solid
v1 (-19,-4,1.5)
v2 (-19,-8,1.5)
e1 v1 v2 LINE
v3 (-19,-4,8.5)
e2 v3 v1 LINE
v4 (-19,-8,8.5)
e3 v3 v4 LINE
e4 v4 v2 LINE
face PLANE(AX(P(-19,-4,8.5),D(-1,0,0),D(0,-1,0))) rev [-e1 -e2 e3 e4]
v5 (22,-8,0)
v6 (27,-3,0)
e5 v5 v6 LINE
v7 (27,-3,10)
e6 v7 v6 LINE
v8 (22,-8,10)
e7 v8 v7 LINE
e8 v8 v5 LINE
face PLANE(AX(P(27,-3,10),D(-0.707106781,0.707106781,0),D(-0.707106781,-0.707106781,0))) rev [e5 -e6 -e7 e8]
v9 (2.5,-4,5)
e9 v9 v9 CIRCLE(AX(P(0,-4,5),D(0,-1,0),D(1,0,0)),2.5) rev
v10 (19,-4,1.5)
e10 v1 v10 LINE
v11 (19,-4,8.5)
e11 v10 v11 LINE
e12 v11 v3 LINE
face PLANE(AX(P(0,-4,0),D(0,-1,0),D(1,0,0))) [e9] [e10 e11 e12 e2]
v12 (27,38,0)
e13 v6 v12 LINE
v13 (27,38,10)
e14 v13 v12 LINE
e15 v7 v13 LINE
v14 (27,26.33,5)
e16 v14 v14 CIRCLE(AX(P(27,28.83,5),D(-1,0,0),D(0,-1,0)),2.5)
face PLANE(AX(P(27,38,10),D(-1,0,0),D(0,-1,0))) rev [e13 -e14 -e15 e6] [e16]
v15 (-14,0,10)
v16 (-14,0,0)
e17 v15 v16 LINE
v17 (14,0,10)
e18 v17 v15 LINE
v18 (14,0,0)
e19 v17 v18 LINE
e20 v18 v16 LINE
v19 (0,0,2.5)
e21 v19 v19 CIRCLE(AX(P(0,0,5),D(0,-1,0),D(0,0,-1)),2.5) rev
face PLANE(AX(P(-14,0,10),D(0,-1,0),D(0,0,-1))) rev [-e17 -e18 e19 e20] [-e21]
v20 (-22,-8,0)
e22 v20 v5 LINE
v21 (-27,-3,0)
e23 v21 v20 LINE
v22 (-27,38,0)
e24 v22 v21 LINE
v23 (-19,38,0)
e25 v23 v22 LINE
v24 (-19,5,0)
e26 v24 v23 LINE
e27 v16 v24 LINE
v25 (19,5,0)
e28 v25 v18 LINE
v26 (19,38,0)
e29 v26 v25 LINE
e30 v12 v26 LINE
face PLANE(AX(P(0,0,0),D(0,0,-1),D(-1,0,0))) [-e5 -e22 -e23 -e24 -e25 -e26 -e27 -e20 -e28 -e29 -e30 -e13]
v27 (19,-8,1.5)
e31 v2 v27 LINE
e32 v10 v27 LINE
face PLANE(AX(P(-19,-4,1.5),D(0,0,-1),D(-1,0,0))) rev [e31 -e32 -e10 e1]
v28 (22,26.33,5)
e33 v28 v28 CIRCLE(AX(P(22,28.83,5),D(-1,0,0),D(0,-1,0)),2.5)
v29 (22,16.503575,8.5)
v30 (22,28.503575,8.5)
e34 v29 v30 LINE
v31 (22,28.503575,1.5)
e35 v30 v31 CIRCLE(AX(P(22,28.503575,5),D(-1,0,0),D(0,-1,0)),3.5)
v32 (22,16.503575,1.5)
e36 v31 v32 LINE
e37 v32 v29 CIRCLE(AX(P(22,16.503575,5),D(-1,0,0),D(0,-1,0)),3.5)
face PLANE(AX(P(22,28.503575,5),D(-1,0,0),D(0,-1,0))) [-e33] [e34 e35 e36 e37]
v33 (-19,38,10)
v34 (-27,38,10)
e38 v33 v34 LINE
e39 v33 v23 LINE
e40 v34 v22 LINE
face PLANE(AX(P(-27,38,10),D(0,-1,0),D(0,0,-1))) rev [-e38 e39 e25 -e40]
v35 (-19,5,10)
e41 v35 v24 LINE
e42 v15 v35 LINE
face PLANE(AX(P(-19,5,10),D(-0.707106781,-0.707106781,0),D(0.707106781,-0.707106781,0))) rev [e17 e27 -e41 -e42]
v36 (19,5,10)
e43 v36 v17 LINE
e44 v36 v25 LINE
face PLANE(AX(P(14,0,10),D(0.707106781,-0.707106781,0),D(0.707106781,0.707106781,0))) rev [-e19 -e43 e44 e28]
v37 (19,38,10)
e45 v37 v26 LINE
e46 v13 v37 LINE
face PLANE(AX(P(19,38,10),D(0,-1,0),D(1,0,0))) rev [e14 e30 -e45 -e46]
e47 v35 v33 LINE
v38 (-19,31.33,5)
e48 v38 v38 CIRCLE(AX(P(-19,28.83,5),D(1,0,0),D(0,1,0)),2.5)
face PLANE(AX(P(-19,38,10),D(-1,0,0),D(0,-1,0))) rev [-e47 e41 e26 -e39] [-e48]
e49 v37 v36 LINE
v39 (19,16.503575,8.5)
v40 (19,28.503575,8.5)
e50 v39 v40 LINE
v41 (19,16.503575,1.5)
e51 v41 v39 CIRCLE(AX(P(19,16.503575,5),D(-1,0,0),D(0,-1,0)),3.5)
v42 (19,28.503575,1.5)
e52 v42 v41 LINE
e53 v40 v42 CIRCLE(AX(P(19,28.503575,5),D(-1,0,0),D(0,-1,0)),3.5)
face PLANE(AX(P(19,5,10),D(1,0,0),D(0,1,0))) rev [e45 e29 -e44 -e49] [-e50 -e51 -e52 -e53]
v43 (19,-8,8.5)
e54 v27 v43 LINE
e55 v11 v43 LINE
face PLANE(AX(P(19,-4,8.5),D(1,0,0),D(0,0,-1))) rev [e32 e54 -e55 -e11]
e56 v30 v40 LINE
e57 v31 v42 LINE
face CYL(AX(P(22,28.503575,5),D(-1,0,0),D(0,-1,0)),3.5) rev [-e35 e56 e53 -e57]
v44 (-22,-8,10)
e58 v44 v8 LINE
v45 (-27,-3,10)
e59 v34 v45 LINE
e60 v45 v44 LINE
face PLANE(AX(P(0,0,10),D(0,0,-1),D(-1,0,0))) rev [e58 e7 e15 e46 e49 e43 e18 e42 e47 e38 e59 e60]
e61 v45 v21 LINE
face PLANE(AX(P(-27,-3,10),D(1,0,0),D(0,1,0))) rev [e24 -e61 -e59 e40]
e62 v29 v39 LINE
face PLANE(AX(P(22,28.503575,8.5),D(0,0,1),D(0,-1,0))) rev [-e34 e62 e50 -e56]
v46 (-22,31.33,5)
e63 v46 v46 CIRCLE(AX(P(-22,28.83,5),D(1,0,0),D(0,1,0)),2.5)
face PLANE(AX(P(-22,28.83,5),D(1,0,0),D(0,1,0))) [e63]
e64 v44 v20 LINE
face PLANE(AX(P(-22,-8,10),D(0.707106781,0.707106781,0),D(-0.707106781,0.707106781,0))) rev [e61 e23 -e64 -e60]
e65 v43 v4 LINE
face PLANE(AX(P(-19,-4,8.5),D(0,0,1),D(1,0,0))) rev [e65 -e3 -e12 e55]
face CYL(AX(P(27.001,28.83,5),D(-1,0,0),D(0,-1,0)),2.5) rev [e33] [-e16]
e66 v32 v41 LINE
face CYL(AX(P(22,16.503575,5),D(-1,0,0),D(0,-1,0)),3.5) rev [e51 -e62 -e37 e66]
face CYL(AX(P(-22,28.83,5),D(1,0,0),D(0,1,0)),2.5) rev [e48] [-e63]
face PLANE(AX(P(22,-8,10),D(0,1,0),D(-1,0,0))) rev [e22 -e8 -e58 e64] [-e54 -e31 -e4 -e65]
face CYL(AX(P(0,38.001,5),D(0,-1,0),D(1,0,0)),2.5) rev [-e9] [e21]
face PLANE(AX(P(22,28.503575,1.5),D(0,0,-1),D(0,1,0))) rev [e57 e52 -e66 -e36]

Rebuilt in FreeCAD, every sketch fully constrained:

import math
import FreeCAD as App
import Part
import Sketcher

V = App.Vector

doc = App.newDocument("Part")
body = doc.addObject("PartDesign::Body", "Body")

# Sketch on XY plane
sketch1 = body.newObject("Sketcher::SketchObject", "Sketch")
sketch1.AttachmentSupport = (doc.getObject("XY_Plane"), [""])
sketch1.MapMode = "FlatFace"
sketch1.addGeometry(Part.LineSegment(V(-19, 38, 0), V(-27, 38, 0)), False)
sketch1.addGeometry(Part.LineSegment(V(-27, 38, 0), V(-27, -3, 0)), False)
sketch1.addGeometry(Part.LineSegment(V(-27, -3, 0), V(-22, -8, 0)), False)
sketch1.addGeometry(Part.LineSegment(V(-22, -8, 0), V(22, -8, 0)), False)
sketch1.addGeometry(Part.LineSegment(V(22, -8, 0), V(27, -3, 0)), False)
sketch1.addGeometry(Part.LineSegment(V(27, -3, 0), V(27, 38, 0)), False)
sketch1.addGeometry(Part.LineSegment(V(27, 38, 0), V(19, 38, 0)), False)
sketch1.addGeometry(Part.LineSegment(V(19, 38, 0), V(19, 5, 0)), False)
sketch1.addGeometry(Part.LineSegment(V(19, 5, 0), V(14, 0, 0)), False)
sketch1.addGeometry(Part.LineSegment(V(14, 0, 0), V(-14, 0, 0)), False)
sketch1.addGeometry(Part.LineSegment(V(-14, 0, 0), V(-19, 5, 0)), False)
sketch1.addGeometry(Part.LineSegment(V(-19, 5, 0), V(-19, 38, 0)), False)
sketch1.addConstraint(Sketcher.Constraint("Coincident", 0, 2, 1, 1))
sketch1.addConstraint(Sketcher.Constraint("Coincident", 1, 2, 2, 1))
sketch1.addConstraint(Sketcher.Constraint("Coincident", 2, 2, 3, 1))
sketch1.addConstraint(Sketcher.Constraint("Coincident", 3, 2, 4, 1))
sketch1.addConstraint(Sketcher.Constraint("Coincident", 4, 2, 5, 1))
sketch1.addConstraint(Sketcher.Constraint("Coincident", 5, 2, 6, 1))
sketch1.addConstraint(Sketcher.Constraint("Coincident", 6, 2, 7, 1))
sketch1.addConstraint(Sketcher.Constraint("Coincident", 7, 2, 8, 1))
sketch1.addConstraint(Sketcher.Constraint("Coincident", 8, 2, 9, 1))
sketch1.addConstraint(Sketcher.Constraint("Coincident", 9, 2, 10, 1))
sketch1.addConstraint(Sketcher.Constraint("Coincident", 10, 2, 11, 1))
sketch1.addConstraint(Sketcher.Constraint("Coincident", 11, 2, 0, 1))
sketch1.addConstraint(Sketcher.Constraint("Horizontal", 0))
sketch1.addConstraint(Sketcher.Constraint("Vertical", 1))
sketch1.addConstraint(Sketcher.Constraint("Horizontal", 3))
sketch1.addConstraint(Sketcher.Constraint("Vertical", 5))
sketch1.addConstraint(Sketcher.Constraint("Horizontal", 6))
sketch1.addConstraint(Sketcher.Constraint("Vertical", 7))
sketch1.addConstraint(Sketcher.Constraint("Horizontal", 9))
sketch1.addConstraint(Sketcher.Constraint("Vertical", 11))
sketch1.addConstraint(Sketcher.Constraint("Symmetric", 8, 2, 9, 2, -1, 1))
sketch1.addConstraint(Sketcher.Constraint("Symmetric", 1, 2, 4, 2, -2))
sketch1.addConstraint(Sketcher.Constraint("Symmetric", 7, 2, 10, 2, -2))
sketch1.addConstraint(Sketcher.Constraint("Perpendicular", 2, 4))
sketch1.addConstraint(Sketcher.Constraint("Parallel", 4, 8))
sketch1.addConstraint(Sketcher.Constraint("Perpendicular", 8, 10))
sketch1.addConstraint(Sketcher.Constraint("Horizontal", 0, 2, 5, 2))
sketch1.addConstraint(Sketcher.Constraint("Equal", 4, 8))
sketch1.addConstraint(Sketcher.Constraint("DistanceX", 0, 2, 0, 1, 8.0))
sketch1.addConstraint(Sketcher.Constraint("DistanceX", 3, 1, 3, 2, 44.0))
sketch1.addConstraint(Sketcher.Constraint("DistanceY", 1, 2, 1, 1, 41.0))
sketch1.addConstraint(Sketcher.Constraint("DistanceY", 7, 2, 7, 1, 33.0))
sketch1.addConstraint(Sketcher.Constraint("DistanceX", 0, 2, -1, 1, 27.0))
pad1 = body.newObject("PartDesign::Pad", "Pad")
pad1.Profile = sketch1
pad1.Length = 10

# Sketch on YZ plane
sketch2 = body.newObject("Sketcher::SketchObject", "Sketch001")
sketch2.AttachmentSupport = (doc.getObject("YZ_Plane"), [""])
sketch2.MapMode = "FlatFace"
sketch2.AttachmentOffset = App.Placement(V(0, 0, -19), App.Rotation())
sketch2.addGeometry(Part.Circle(V(28.83, 5, 0), V(0, 0, 1), 2.5), False)
sketch2.addConstraint(Sketcher.Constraint("Diameter", 0, 5.0))
sketch2.addConstraint(Sketcher.Constraint("DistanceY", -1, 1, 0, 3, 5.0))
sketch2.addConstraint(Sketcher.Constraint("DistanceX", -1, 1, 0, 3, 28.83))
pocket1 = body.newObject("PartDesign::Pocket", "Pocket")
pocket1.Profile = sketch2
pocket1.Length = 3

# Sketch on YZ plane
sketch3 = body.newObject("Sketcher::SketchObject", "Sketch002")
sketch3.AttachmentSupport = (doc.getObject("YZ_Plane"), [""])
sketch3.MapMode = "FlatFace"
sketch3.AttachmentOffset = App.Placement(V(0, 0, -19), App.Rotation())
sketch3.addGeometry(Part.Circle(V(28.83, 5, 0), V(0, 0, 1), 2.5), False)
sketch3.addConstraint(Sketcher.Constraint("Diameter", 0, 5.0))
sketch3.addConstraint(Sketcher.Constraint("DistanceY", -1, 1, 0, 3, 5.0))
sketch3.addConstraint(Sketcher.Constraint("DistanceX", -1, 1, 0, 3, 28.83))
pocket2 = body.newObject("PartDesign::Pocket", "Pocket001")
pocket2.Profile = sketch3
pocket2.Length = 46
pocket2.Reversed = True

# Sketch on YZ plane
sketch4 = body.newObject("Sketcher::SketchObject", "Sketch003")
sketch4.AttachmentSupport = (doc.getObject("YZ_Plane"), [""])
sketch4.MapMode = "FlatFace"
sketch4.AttachmentOffset = App.Placement(V(0, 0, 19), App.Rotation())
sketch4.addGeometry(Part.LineSegment(V(16.503575, 8.5, 0), V(28.503575, 8.5, 0)), False)
sketch4.addGeometry(Part.ArcOfCircle(Part.Circle(V(28.503575, 5, 0), V(0, 0, 1), 3.5), math.radians(-90), math.radians(90)), False)
sketch4.addGeometry(Part.LineSegment(V(28.503575, 1.5, 0), V(16.503575, 1.5, 0)), False)
sketch4.addGeometry(Part.ArcOfCircle(Part.Circle(V(16.503575, 5, 0), V(0, 0, 1), 3.5), math.radians(90), math.radians(270)), False)
sketch4.addConstraint(Sketcher.Constraint("Tangent", 0, 2, 1, 2))
sketch4.addConstraint(Sketcher.Constraint("Tangent", 1, 1, 2, 1))
sketch4.addConstraint(Sketcher.Constraint("Tangent", 2, 2, 3, 2))
sketch4.addConstraint(Sketcher.Constraint("Tangent", 3, 1, 0, 1))
sketch4.addConstraint(Sketcher.Constraint("Horizontal", 0))
sketch4.addConstraint(Sketcher.Constraint("Horizontal", 2))
sketch4.addConstraint(Sketcher.Constraint("Radius", 1, 3.5))
sketch4.addConstraint(Sketcher.Constraint("DistanceX", 0, 1, 0, 2, 12.0))
sketch4.addConstraint(Sketcher.Constraint("DistanceY", -1, 1, 1, 3, 5.0))
sketch4.addConstraint(Sketcher.Constraint("DistanceX", -1, 1, 1, 3, 28.503575))
pocket3 = body.newObject("PartDesign::Pocket", "Pocket002")
pocket3.Profile = sketch4
pocket3.Length = 3
pocket3.Reversed = True

# Sketch on XZ plane
sketch5 = body.newObject("Sketcher::SketchObject", "Sketch004")
sketch5.AttachmentSupport = (doc.getObject("XZ_Plane"), [""])
sketch5.MapMode = "FlatFace"
sketch5.AttachmentOffset = App.Placement(V(0, 0, 8), App.Rotation())
sketch5.addGeometry(Part.Circle(V(0, 5, 0), V(0, 0, 1), 2.5), False)
sketch5.addConstraint(Sketcher.Constraint("PointOnObject", 0, 3, -2))
sketch5.addConstraint(Sketcher.Constraint("Diameter", 0, 5.0))
sketch5.addConstraint(Sketcher.Constraint("DistanceY", -1, 1, 0, 3, 5.0))
pocket4 = body.newObject("PartDesign::Pocket", "Pocket003")
pocket4.Profile = sketch5
pocket4.Type = "UpToFirst"

# Sketch on XZ plane
sketch6 = body.newObject("Sketcher::SketchObject", "Sketch005")
sketch6.AttachmentSupport = (doc.getObject("XZ_Plane"), [""])
sketch6.MapMode = "FlatFace"
sketch6.AttachmentOffset = App.Placement(V(0, 0, 8), App.Rotation())
sketch6.addGeometry(Part.LineSegment(V(-19, 8.5, 0), V(-19, 1.5, 0)), False)
sketch6.addGeometry(Part.LineSegment(V(-19, 1.5, 0), V(19, 1.5, 0)), False)
sketch6.addGeometry(Part.LineSegment(V(19, 1.5, 0), V(19, 8.5, 0)), False)
sketch6.addGeometry(Part.LineSegment(V(19, 8.5, 0), V(-19, 8.5, 0)), False)
sketch6.addConstraint(Sketcher.Constraint("Coincident", 0, 2, 1, 1))
sketch6.addConstraint(Sketcher.Constraint("Coincident", 1, 2, 2, 1))
sketch6.addConstraint(Sketcher.Constraint("Coincident", 2, 2, 3, 1))
sketch6.addConstraint(Sketcher.Constraint("Coincident", 3, 2, 0, 1))
sketch6.addConstraint(Sketcher.Constraint("Vertical", 0))
sketch6.addConstraint(Sketcher.Constraint("Horizontal", 1))
sketch6.addConstraint(Sketcher.Constraint("Vertical", 2))
sketch6.addConstraint(Sketcher.Constraint("Horizontal", 3))
sketch6.addConstraint(Sketcher.Constraint("DistanceX", 1, 1, 1, 2, 38.0))
sketch6.addConstraint(Sketcher.Constraint("DistanceY", 0, 2, 0, 1, 7.0))
sketch6.addConstraint(Sketcher.Constraint("DistanceX", 0, 2, -1, 1, 19.0))
sketch6.addConstraint(Sketcher.Constraint("DistanceY", -1, 1, 0, 2, 1.5))
pocket5 = body.newObject("PartDesign::Pocket", "Pocket004")
pocket5.Profile = sketch6
pocket5.Length = 4

doc.recompute()
